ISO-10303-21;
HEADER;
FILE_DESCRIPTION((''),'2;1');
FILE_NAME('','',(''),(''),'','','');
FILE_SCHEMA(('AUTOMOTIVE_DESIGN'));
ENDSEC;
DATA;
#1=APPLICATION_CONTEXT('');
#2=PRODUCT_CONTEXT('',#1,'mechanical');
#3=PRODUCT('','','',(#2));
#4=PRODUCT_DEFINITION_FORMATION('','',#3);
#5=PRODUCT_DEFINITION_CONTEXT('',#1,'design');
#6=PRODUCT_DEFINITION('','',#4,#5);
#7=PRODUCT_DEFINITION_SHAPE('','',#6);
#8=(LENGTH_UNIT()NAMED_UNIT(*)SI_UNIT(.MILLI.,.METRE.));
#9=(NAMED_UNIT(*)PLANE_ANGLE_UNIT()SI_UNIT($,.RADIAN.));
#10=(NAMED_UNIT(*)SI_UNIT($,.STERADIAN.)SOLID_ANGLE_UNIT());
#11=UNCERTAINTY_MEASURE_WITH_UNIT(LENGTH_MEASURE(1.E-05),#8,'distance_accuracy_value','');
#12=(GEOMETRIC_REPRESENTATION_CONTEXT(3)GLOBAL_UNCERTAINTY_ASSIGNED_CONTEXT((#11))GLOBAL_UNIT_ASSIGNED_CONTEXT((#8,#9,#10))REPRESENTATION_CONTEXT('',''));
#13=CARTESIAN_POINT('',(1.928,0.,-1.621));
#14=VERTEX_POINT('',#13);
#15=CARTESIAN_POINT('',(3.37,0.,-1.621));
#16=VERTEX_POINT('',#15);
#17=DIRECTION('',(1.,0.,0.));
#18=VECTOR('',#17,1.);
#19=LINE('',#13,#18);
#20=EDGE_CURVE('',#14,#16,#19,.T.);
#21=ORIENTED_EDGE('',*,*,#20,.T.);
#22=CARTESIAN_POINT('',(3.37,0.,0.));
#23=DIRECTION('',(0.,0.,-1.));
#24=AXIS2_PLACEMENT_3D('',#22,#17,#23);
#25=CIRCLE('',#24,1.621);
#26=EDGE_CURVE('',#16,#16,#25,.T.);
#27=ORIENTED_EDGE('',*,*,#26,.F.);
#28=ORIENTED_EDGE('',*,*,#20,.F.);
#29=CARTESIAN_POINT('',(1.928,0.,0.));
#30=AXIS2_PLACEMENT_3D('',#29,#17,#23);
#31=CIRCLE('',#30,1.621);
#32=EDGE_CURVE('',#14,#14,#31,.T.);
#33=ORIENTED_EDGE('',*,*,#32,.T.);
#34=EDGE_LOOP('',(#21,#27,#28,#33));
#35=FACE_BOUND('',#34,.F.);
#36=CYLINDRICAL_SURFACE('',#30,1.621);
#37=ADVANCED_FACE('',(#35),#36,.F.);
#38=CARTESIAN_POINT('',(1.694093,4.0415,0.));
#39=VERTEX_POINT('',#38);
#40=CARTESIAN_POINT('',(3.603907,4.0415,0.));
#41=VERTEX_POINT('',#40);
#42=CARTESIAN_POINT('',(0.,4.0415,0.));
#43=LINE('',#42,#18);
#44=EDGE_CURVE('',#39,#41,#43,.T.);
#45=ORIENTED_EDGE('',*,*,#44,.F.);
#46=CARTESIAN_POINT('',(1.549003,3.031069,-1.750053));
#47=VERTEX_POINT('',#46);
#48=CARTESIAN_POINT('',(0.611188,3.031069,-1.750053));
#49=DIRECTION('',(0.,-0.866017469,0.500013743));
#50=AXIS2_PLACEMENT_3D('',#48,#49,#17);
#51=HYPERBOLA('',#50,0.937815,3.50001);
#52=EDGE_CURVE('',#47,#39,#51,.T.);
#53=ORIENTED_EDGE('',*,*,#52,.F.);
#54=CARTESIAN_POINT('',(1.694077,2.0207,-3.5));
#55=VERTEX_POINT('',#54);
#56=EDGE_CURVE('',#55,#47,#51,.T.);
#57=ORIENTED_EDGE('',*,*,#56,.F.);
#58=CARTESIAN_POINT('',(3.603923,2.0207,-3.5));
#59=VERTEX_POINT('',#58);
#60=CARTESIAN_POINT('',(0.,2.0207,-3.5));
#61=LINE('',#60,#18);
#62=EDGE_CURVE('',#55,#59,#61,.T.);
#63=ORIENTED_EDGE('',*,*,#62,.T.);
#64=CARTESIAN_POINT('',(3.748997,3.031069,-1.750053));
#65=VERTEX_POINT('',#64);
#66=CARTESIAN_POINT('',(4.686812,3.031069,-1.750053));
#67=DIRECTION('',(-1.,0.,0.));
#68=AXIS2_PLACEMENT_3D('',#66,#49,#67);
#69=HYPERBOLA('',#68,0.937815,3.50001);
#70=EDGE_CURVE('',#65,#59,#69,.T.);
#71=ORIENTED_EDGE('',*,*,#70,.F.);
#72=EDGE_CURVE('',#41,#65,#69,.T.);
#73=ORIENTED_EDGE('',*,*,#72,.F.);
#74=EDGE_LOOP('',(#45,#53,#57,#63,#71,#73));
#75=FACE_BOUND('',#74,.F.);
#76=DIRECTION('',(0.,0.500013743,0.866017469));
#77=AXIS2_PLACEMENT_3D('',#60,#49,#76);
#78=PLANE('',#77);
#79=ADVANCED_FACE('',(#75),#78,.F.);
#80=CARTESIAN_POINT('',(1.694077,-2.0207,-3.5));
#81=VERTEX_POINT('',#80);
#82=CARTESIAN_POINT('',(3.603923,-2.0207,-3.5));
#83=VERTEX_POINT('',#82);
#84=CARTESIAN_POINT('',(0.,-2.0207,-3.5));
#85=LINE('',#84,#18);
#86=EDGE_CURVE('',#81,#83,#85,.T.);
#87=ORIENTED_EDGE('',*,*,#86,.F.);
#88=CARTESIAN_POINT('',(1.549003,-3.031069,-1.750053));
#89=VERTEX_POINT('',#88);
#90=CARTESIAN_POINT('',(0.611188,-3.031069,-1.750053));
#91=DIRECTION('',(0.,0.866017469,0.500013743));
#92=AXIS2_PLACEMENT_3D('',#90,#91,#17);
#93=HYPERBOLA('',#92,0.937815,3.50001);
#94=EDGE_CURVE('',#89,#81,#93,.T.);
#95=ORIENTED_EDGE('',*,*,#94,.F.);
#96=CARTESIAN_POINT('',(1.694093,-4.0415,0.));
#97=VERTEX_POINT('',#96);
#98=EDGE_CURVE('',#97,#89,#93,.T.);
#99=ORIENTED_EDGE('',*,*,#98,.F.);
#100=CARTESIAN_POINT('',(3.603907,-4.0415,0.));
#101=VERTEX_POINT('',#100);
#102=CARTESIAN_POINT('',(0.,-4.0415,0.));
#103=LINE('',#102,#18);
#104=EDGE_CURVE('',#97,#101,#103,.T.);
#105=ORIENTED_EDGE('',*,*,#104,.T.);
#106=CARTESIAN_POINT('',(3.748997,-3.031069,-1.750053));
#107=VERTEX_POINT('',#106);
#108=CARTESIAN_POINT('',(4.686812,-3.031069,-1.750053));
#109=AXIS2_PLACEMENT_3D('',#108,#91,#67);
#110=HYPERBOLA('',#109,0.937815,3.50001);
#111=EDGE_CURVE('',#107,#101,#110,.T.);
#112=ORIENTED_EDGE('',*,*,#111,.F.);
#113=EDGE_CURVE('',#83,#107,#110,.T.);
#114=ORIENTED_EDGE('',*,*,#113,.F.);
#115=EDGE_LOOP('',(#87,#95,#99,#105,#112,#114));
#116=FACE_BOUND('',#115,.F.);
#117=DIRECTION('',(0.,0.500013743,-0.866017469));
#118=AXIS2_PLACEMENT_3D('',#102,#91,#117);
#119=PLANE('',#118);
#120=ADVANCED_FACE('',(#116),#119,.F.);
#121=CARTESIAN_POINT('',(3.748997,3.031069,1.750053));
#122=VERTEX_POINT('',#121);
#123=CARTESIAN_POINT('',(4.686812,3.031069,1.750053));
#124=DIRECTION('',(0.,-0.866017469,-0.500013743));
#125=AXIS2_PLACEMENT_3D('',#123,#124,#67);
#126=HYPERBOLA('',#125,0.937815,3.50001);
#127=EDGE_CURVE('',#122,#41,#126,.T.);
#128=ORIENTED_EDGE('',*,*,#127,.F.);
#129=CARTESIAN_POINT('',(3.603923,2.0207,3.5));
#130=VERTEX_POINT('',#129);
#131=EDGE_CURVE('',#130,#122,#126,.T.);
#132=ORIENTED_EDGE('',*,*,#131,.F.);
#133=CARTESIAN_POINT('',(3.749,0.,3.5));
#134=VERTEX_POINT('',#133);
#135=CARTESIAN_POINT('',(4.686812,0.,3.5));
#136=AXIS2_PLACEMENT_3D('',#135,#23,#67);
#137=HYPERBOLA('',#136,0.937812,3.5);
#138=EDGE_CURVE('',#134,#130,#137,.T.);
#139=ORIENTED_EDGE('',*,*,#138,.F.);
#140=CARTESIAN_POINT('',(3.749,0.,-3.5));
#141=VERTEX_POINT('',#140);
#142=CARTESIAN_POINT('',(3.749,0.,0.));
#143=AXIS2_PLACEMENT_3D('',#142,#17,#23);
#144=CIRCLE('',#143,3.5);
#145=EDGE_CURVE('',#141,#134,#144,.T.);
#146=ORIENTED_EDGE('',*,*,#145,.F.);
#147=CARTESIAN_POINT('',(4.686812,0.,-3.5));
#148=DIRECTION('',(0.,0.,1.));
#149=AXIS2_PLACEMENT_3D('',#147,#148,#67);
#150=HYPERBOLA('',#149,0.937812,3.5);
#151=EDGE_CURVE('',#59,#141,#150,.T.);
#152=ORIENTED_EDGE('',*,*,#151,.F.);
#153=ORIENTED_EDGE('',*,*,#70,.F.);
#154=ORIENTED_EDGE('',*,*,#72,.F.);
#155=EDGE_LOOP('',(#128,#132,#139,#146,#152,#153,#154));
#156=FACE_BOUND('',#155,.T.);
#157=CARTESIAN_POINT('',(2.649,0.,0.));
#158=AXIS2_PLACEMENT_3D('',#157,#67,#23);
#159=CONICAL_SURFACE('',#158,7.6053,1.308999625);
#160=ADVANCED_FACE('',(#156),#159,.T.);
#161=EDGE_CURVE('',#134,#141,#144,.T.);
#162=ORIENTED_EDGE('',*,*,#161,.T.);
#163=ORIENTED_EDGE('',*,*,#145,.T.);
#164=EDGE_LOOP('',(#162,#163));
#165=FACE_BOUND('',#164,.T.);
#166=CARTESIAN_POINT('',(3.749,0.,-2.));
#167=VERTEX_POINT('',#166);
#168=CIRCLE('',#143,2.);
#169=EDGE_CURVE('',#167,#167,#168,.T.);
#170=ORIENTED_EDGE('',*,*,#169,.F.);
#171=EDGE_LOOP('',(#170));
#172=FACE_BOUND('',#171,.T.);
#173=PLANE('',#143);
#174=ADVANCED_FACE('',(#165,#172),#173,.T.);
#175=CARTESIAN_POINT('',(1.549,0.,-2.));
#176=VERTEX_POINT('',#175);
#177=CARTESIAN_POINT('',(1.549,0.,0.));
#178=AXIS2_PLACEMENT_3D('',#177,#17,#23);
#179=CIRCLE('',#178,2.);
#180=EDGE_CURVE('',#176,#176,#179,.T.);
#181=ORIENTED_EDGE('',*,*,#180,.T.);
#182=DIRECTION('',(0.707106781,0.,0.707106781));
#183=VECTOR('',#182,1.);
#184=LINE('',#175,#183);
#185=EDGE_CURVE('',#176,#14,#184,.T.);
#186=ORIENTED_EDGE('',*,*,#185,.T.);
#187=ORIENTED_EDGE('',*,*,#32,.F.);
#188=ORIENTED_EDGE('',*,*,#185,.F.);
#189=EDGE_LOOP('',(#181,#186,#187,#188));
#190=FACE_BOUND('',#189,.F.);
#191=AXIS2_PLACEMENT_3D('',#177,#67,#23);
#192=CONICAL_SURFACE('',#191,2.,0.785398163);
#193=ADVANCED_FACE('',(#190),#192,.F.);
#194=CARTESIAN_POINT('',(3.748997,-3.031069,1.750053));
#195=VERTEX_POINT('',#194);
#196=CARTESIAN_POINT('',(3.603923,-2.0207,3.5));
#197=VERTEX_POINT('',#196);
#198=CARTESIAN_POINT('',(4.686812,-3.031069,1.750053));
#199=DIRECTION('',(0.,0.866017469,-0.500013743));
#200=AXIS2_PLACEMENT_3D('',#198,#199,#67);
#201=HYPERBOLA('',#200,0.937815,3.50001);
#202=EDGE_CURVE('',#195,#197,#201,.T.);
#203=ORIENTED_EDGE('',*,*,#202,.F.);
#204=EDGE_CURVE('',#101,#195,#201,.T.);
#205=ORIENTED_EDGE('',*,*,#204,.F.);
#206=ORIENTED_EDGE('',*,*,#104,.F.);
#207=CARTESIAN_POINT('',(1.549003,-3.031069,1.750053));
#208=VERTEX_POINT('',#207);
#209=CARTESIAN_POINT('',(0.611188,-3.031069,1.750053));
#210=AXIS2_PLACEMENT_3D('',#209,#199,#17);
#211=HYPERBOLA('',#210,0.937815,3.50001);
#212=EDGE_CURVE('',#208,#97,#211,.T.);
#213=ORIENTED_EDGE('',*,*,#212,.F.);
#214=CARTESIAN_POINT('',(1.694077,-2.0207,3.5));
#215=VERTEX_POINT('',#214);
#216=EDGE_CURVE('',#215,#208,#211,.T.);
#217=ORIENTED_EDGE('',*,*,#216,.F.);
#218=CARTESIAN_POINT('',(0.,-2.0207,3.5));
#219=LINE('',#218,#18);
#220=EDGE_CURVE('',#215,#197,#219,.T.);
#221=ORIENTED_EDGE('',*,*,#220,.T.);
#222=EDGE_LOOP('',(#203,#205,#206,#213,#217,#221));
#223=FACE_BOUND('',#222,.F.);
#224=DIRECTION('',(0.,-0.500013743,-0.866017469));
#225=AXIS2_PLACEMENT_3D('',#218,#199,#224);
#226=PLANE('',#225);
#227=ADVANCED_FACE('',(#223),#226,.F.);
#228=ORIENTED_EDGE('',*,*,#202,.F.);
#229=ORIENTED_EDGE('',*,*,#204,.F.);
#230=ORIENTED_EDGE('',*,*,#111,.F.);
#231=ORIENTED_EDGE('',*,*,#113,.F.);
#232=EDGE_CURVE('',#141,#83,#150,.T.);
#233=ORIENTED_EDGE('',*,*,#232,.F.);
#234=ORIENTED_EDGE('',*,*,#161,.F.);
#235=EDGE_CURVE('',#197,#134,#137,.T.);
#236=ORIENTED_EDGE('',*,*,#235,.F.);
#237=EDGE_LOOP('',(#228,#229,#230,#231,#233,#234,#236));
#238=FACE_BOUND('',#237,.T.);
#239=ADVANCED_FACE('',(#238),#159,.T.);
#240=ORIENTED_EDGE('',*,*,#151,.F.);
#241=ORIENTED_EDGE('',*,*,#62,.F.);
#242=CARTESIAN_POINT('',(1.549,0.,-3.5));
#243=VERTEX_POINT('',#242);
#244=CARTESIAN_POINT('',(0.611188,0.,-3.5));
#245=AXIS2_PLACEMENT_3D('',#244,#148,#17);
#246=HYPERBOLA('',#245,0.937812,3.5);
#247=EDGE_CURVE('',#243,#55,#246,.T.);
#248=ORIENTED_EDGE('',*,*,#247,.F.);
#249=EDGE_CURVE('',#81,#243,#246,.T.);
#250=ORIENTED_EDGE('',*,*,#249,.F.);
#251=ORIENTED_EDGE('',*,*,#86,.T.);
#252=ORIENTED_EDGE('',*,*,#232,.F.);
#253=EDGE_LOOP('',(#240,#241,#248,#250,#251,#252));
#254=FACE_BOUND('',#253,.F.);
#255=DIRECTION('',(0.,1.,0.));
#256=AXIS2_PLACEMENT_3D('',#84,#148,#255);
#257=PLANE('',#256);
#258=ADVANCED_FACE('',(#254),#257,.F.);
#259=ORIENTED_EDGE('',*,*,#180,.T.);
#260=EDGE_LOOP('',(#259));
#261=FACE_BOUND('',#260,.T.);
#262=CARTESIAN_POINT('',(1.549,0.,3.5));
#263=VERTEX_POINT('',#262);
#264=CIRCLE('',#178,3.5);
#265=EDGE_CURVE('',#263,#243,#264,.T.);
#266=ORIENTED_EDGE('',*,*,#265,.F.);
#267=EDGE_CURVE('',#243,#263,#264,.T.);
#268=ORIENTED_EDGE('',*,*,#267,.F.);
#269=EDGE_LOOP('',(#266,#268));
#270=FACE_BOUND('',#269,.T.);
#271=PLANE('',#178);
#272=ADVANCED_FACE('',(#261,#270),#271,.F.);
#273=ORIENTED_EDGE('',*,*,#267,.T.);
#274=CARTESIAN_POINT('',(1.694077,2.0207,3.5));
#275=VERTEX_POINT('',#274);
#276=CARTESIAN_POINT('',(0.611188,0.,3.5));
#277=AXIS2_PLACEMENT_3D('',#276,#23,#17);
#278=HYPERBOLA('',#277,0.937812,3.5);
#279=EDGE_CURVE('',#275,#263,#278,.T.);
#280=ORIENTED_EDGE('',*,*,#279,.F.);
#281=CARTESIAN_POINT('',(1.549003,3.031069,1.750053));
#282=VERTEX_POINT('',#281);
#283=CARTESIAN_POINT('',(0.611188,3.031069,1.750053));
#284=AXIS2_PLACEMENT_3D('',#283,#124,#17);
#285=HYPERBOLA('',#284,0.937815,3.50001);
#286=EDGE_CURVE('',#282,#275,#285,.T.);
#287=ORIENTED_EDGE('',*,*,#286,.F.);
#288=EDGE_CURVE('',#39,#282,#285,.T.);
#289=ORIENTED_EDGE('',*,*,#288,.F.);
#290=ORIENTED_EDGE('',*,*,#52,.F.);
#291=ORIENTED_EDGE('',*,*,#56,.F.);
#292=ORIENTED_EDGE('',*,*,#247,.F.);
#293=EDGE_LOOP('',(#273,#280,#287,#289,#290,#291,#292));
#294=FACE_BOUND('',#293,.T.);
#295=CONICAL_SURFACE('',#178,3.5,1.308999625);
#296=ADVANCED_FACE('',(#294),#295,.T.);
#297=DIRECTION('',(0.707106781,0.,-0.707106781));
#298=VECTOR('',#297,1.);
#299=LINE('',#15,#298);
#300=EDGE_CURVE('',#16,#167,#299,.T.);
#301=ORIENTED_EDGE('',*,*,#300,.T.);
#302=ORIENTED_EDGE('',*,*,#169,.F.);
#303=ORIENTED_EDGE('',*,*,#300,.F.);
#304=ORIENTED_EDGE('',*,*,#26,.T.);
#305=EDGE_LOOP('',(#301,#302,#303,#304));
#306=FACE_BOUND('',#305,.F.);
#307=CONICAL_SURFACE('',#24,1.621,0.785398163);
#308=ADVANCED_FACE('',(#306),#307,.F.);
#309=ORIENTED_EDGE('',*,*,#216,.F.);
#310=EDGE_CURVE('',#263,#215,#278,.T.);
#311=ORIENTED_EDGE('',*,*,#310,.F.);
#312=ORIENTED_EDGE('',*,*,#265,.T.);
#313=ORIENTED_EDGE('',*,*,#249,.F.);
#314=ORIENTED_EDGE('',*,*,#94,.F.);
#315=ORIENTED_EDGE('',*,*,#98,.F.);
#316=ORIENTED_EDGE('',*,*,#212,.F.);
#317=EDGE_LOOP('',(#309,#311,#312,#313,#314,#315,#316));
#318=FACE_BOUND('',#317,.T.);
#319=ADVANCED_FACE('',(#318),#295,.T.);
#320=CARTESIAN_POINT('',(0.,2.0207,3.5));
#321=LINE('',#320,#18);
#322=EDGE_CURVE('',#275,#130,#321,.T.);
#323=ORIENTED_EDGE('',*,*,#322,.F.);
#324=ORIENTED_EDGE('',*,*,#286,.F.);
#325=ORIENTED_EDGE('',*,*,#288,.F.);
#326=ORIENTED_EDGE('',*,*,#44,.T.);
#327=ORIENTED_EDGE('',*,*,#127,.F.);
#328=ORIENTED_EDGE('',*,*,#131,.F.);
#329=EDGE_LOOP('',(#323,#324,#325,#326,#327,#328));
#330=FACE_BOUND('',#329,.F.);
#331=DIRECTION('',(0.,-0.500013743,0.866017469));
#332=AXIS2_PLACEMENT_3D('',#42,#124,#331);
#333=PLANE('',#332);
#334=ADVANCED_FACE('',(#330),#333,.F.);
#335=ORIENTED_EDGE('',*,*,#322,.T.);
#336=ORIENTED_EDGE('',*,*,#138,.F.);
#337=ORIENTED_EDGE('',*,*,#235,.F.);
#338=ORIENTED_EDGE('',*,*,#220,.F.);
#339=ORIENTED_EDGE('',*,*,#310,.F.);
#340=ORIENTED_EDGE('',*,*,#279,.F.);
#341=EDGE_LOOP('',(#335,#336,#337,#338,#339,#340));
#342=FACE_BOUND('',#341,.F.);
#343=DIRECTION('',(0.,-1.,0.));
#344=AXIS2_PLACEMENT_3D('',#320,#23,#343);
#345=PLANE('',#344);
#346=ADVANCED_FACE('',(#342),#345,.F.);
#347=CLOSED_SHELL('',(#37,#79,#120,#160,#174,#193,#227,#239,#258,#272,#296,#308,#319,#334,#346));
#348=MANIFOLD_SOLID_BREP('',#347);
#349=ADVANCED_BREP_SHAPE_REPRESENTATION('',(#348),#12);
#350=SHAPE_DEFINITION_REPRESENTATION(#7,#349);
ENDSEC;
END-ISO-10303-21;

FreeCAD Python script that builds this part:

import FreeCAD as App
import Part
import Sketcher
Q = App.Units.Quantity

doc = App.newDocument("Part")
body = doc.addObject("PartDesign::Body", "Body")

# Sketch on XZ plane
sketch1 = doc.addObject("Sketcher::SketchObject", "Sketch")
body.addObject(sketch1)
sketch1.AttachmentSupport = (doc.XZ_Plane, [""])
sketch1.MapMode = "FlatFace"
sketch1.addGeometry([
    Part.LineSegment(App.Vector(1.549, 0, 0), App.Vector(3.749, 0, 0)),  # 0
    Part.LineSegment(App.Vector(3.749, 0, 0), App.Vector(3.749, -3.5, 0)),  # 1
    Part.LineSegment(App.Vector(3.749, -3.5, 0), App.Vector(2.649, -7.6053, 0)),  # 2
    Part.LineSegment(App.Vector(2.649, -7.6053, 0), App.Vector(1.549, -3.5, 0)),  # 3
    Part.LineSegment(App.Vector(1.549, -3.5, 0), App.Vector(1.549, 0, 0)),  # 4
], False)
sketch1.addConstraint([
    Sketcher.Constraint("Coincident", 0, 2, 1, 1),
    Sketcher.Constraint("Coincident", 1, 2, 2, 1),
    Sketcher.Constraint("Coincident", 2, 2, 3, 1),
    Sketcher.Constraint("Coincident", 3, 2, 4, 1),
    Sketcher.Constraint("Coincident", 4, 2, 0, 1),
    Sketcher.Constraint("Horizontal", 0),
    Sketcher.Constraint("Vertical", 1),
    Sketcher.Constraint("Vertical", 4),
    Sketcher.Constraint("PointOnObject", 0, 2, -1),
    Sketcher.Constraint("Horizontal", 1, 2, 3, 2),
    Sketcher.Constraint("Equal", 2, 3),
    Sketcher.Constraint("Angle", 2, Q("-104.9998 deg")),
    Sketcher.Constraint("DistanceX", 0, 1, 0, 2, Q("2.2 mm")),
    Sketcher.Constraint("DistanceY", 1, 2, 1, 1, Q("3.5 mm")),
    Sketcher.Constraint("DistanceX", -1, 1, 0, 2, Q("3.749 mm")),
])
revolution = doc.addObject("PartDesign::Revolution", "Revolution")
body.addObject(revolution)
revolution.Profile = sketch1
revolution.ReferenceAxis = (sketch1, ["H_Axis"])
revolution.Angle = 360

# Sketch on YZ plane
sketch2 = doc.addObject("Sketcher::SketchObject", "Sketch001")
body.addObject(sketch2)
sketch2.AttachmentSupport = (doc.YZ_Plane, [""])
sketch2.MapMode = "FlatFace"
sketch2.addGeometry([
    Part.LineSegment(App.Vector(26, 26, 0), App.Vector(-35, 26, 0)),  # 0
    Part.LineSegment(App.Vector(-35, 26, 0), App.Vector(-35, -52, 0)),  # 1
    Part.LineSegment(App.Vector(-35, -52, 0), App.Vector(26, -52, 0)),  # 2
    Part.LineSegment(App.Vector(26, -52, 0), App.Vector(26, 26, 0)),  # 3
    Part.LineSegment(App.Vector(-4.0415, 0, 0), App.Vector(-2.0207, 3.5, 0)),  # 4
    Part.LineSegment(App.Vector(-2.0207, 3.5, 0), App.Vector(2.0207, 3.5, 0)),  # 5
    Part.LineSegment(App.Vector(2.0207, 3.5, 0), App.Vector(4.0415, 0, 0)),  # 6
    Part.LineSegment(App.Vector(4.0415, 0, 0), App.Vector(2.0207, -3.5, 0)),  # 7
    Part.LineSegment(App.Vector(2.0207, -3.5, 0), App.Vector(-2.0207, -3.5, 0)),  # 8
    Part.LineSegment(App.Vector(-2.0207, -3.5, 0), App.Vector(-4.0415, 0, 0)),  # 9
], False)
sketch2.addConstraint([
    Sketcher.Constraint("Coincident", 0, 2, 1, 1),
    Sketcher.Constraint("Coincident", 1, 2, 2, 1),
    Sketcher.Constraint("Coincident", 2, 2, 3, 1),
    Sketcher.Constraint("Coincident", 3, 2, 0, 1),
    Sketcher.Constraint("Coincident", 4, 2, 5, 1),
    Sketcher.Constraint("Coincident", 5, 2, 6, 1),
    Sketcher.Constraint("Coincident", 6, 2, 7, 1),
    Sketcher.Constraint("Coincident", 7, 2, 8, 1),
    Sketcher.Constraint("Coincident", 8, 2, 9, 1),
    Sketcher.Constraint("Coincident", 9, 2, 4, 1),
    Sketcher.Constraint("Horizontal", 0),
    Sketcher.Constraint("Vertical", 1),
    Sketcher.Constraint("Horizontal", 2),
    Sketcher.Constraint("Vertical", 3),
    Sketcher.Constraint("Horizontal", 5),
    Sketcher.Constraint("Horizontal", 8),
    Sketcher.Constraint("Symmetric", 4, 2, 7, 2, -1, 1),
    Sketcher.Constraint("Symmetric", 6, 2, 9, 2, -1, 1),
    Sketcher.Constraint("PointOnObject", 6, 2, -1),
    Sketcher.Constraint("Parallel", 6, 9),
    Sketcher.Constraint("Vertical", 5, 2, 7, 2),
    Sketcher.Constraint("DistanceX", 0, 2, 0, 1, Q("61 mm")),
    Sketcher.Constraint("DistanceY", 1, 2, 1, 1, Q("78 mm")),
    Sketcher.Constraint("Angle", 4, Q("59.999 deg")),
    Sketcher.Constraint("DistanceX", 0, 2, -1, 1, Q("35 mm")),
    Sketcher.Constraint("DistanceY", -1, 1, 0, 2, Q("26 mm")),
    Sketcher.Constraint("DistanceY", 7, 2, 5, 2, Q("7 mm")),
    Sketcher.Constraint("DistanceX", 5, 1, 5, 2, Q("4.0414 mm")),
])
pocket1 = doc.addObject("PartDesign::Pocket", "Pocket")
body.addObject(pocket1)
pocket1.Profile = sketch2
pocket1.Length = 10
pocket1.Reversed = True

# Sketch on XZ plane
sketch3 = doc.addObject("Sketcher::SketchObject", "Sketch002")
body.addObject(sketch3)
sketch3.AttachmentSupport = (doc.XZ_Plane, [""])
sketch3.MapMode = "FlatFace"
sketch3.addGeometry([
    Part.LineSegment(App.Vector(1.549, 0, 0), App.Vector(3.749, 0, 0)),  # 0
    Part.LineSegment(App.Vector(3.749, 0, 0), App.Vector(3.749, -2, 0)),  # 1
    Part.LineSegment(App.Vector(3.749, -2, 0), App.Vector(3.37, -1.621, 0)),  # 2
    Part.LineSegment(App.Vector(3.37, -1.621, 0), App.Vector(1.928, -1.621, 0)),  # 3
    Part.LineSegment(App.Vector(1.928, -1.621, 0), App.Vector(1.549, -2, 0)),  # 4
    Part.LineSegment(App.Vector(1.549, -2, 0), App.Vector(1.549, 0, 0)),  # 5
], False)
sketch3.addConstraint([
    Sketcher.Constraint("Coincident", 0, 2, 1, 1),
    Sketcher.Constraint("Coincident", 1, 2, 2, 1),
    Sketcher.Constraint("Coincident", 2, 2, 3, 1),
    Sketcher.Constraint("Coincident", 3, 2, 4, 1),
    Sketcher.Constraint("Coincident", 4, 2, 5, 1),
    Sketcher.Constraint("Coincident", 5, 2, 0, 1),
    Sketcher.Constraint("Horizontal", 0),
    Sketcher.Constraint("Vertical", 1),
    Sketcher.Constraint("Horizontal", 3),
    Sketcher.Constraint("Vertical", 5),
    Sketcher.Constraint("PointOnObject", 0, 2, -1),
    Sketcher.Constraint("Perpendicular", 2, 4),
    Sketcher.Constraint("Horizontal", 1, 2, 4, 2),
    Sketcher.Constraint("Equal", 2, 4),
    Sketcher.Constraint("DistanceY", 1, 2, 1, 1, Q("2 mm")),
    Sketcher.Constraint("DistanceX", 0, 1, 0, 2, Q("2.2 mm")),
    Sketcher.Constraint("DistanceX", 3, 2, 3, 1, Q("1.442 mm")),
    Sketcher.Constraint("DistanceX", -1, 1, 2, 2, Q("3.37 mm")),
])
groove = doc.addObject("PartDesign::Groove", "Groove")
body.addObject(groove)
groove.Profile = sketch3
groove.ReferenceAxis = (sketch3, ["H_Axis"])
groove.Angle = 360

doc.recompute()
